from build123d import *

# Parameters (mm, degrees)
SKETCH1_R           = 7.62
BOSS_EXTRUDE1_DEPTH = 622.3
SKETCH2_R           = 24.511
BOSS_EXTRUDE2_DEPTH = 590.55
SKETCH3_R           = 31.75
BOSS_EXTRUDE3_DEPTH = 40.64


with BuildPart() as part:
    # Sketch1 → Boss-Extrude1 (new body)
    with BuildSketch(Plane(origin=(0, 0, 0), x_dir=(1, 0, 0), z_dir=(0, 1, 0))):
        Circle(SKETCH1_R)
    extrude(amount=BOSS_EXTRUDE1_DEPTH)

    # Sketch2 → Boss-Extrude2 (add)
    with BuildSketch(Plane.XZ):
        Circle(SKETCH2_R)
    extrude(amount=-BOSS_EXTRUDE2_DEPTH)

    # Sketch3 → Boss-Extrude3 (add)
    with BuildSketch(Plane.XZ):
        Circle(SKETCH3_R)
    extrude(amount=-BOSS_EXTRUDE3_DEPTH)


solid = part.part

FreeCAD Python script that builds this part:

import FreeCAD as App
import Part
import Sketcher

V = App.Vector
Q = App.Units.Quantity

doc = App.newDocument("Part")
params = doc.addObject("Spreadsheet::Sheet", "Params")
for row, (alias, value) in enumerate([
    ("sketch1_diameter", "0.6 in"),
    ("pad1_length", "24.5 in"),
    ("sketch2_diameter", "1.93 in"),
    ("pad2_length", "23.25 in"),
    ("sketch3_diameter", "2.5 in"),
    ("pad3_length", "1.6 in"),
], start=1):
    params.set(f"A{row}", alias)
    params.set(f"B{row}", "=" + value)
    params.setAlias(f"B{row}", alias)

body = doc.addObject("PartDesign::Body", "Body")

# Sketch on XZ plane
sketch1 = body.newObject("Sketcher::SketchObject", "Sketch")
sketch1.AttachmentSupport = (doc.getObject("XZ_Plane"), [""])
sketch1.MapMode = "FlatFace"
sketch1.addGeometry(Part.Circle(V(0, 0, 0), V(0, 0, 1), 8), False)
sketch1.addConstraint(Sketcher.Constraint("Coincident", 0, 3, -1, 1))
sketch1.addConstraint(Sketcher.Constraint("Diameter", 0, Q("0.6 in")))
sketch1.setExpression("Constraints[1]", "Params.sketch1_diameter")
pad1 = body.newObject("PartDesign::Pad", "Pad")
pad1.Profile = sketch1
pad1.setExpression("Length", "Params.pad1_length")
pad1.Reversed = True

# Sketch on XZ plane
sketch2 = body.newObject("Sketcher::SketchObject", "Sketch001")
sketch2.AttachmentSupport = (doc.getObject("XZ_Plane"), [""])
sketch2.MapMode = "FlatFace"
sketch2.addGeometry(Part.Circle(V(0, 0, 0), V(0, 0, 1), 25), False)
sketch2.addConstraint(Sketcher.Constraint("Coincident", 0, 3, -1, 1))
sketch2.addConstraint(Sketcher.Constraint("Diameter", 0, Q("1.93 in")))
sketch2.setExpression("Constraints[1]", "Params.sketch2_diameter")
pad2 = body.newObject("PartDesign::Pad", "Pad001")
pad2.Profile = sketch2
pad2.setExpression("Length", "Params.pad2_length")
pad2.Reversed = True

# Sketch on XZ plane
sketch3 = body.newObject("Sketcher::SketchObject", "Sketch002")
sketch3.AttachmentSupport = (doc.getObject("XZ_Plane"), [""])
sketch3.MapMode = "FlatFace"
sketch3.addGeometry(Part.Circle(V(0, 0, 0), V(0, 0, 1), 32), False)
sketch3.addConstraint(Sketcher.Constraint("Coincident", 0, 3, -1, 1))
sketch3.addConstraint(Sketcher.Constraint("Diameter", 0, Q("2.5 in")))
sketch3.setExpression("Constraints[1]", "Params.sketch3_diameter")
pad3 = body.newObject("PartDesign::Pad", "Pad002")
pad3.Profile = sketch3
pad3.setExpression("Length", "Params.pad3_length")
pad3.Reversed = True

doc.recompute()
